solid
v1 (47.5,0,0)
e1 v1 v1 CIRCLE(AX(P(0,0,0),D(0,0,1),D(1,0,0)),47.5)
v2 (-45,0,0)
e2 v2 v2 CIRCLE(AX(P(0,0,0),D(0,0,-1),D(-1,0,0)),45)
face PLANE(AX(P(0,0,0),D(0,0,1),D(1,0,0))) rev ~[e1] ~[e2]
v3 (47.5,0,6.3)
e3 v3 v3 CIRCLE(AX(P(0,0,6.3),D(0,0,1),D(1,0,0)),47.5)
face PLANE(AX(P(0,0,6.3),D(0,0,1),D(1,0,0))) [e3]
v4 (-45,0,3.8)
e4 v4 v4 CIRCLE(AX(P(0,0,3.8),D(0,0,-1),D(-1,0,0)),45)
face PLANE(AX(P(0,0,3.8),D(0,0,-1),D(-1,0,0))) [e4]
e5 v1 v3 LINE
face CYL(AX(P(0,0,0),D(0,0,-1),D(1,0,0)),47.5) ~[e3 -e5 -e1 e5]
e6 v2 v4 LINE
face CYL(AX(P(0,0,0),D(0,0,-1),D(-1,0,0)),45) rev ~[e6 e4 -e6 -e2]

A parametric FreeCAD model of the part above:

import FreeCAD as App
import Part
import Sketcher
Q = App.Units.Quantity

doc = App.newDocument("Part")
params = doc.addObject("Spreadsheet::Sheet", "Params")
for row, (alias, value) in enumerate([
    ("sketch1_diameter", "95 mm"),
    ("pad1_length", "6.3 mm"),
    ("sketch2_diameter", "90 mm"),
    ("pocket1_length", "3.8 mm"),
], start=1):
    params.set(f"A{row}", alias)
    params.set(f"B{row}", "=" + value)
    params.setAlias(f"B{row}", alias)

body = doc.addObject("PartDesign::Body", "Body")

sketch1 = body.newObject("Sketcher::SketchObject", "Sketch")
sketch1.AttachmentSupport = (doc.getObject("XY_Plane"), [""])
sketch1.MapMode = "FlatFace"
sketch1.addGeometry(Part.Circle(App.Vector(0, 0, 0), App.Vector(0, 0, 1), 48), False)
sketch1.addConstraint(Sketcher.Constraint("Coincident", 0, 3, -1, 1))
sketch1.addConstraint(Sketcher.Constraint("Diameter", 0, Q("95 mm")))
sketch1.setExpression("Constraints[1]", "Params.sketch1_diameter")
pad1 = body.newObject("PartDesign::Pad", "Pad")
pad1.Profile = sketch1
pad1.setExpression("Length", "Params.pad1_length")

sketch2 = body.newObject("Sketcher::SketchObject", "Sketch001")
sketch2.AttachmentSupport = (doc.getObject("XY_Plane"), [""])
sketch2.MapMode = "FlatFace"
sketch2.addGeometry(Part.Circle(App.Vector(0, 0, 0), App.Vector(0, 0, 1), 45), False)
sketch2.addConstraint(Sketcher.Constraint("Coincident", 0, 3, -1, 1))
sketch2.addConstraint(Sketcher.Constraint("Diameter", 0, Q("90 mm")))
sketch2.setExpression("Constraints[1]", "Params.sketch2_diameter")
pocket1 = body.newObject("PartDesign::Pocket", "Pocket")
pocket1.Profile = sketch2
pocket1.setExpression("Length", "Params.pocket1_length")
pocket1.Reversed = True

doc.recompute()
